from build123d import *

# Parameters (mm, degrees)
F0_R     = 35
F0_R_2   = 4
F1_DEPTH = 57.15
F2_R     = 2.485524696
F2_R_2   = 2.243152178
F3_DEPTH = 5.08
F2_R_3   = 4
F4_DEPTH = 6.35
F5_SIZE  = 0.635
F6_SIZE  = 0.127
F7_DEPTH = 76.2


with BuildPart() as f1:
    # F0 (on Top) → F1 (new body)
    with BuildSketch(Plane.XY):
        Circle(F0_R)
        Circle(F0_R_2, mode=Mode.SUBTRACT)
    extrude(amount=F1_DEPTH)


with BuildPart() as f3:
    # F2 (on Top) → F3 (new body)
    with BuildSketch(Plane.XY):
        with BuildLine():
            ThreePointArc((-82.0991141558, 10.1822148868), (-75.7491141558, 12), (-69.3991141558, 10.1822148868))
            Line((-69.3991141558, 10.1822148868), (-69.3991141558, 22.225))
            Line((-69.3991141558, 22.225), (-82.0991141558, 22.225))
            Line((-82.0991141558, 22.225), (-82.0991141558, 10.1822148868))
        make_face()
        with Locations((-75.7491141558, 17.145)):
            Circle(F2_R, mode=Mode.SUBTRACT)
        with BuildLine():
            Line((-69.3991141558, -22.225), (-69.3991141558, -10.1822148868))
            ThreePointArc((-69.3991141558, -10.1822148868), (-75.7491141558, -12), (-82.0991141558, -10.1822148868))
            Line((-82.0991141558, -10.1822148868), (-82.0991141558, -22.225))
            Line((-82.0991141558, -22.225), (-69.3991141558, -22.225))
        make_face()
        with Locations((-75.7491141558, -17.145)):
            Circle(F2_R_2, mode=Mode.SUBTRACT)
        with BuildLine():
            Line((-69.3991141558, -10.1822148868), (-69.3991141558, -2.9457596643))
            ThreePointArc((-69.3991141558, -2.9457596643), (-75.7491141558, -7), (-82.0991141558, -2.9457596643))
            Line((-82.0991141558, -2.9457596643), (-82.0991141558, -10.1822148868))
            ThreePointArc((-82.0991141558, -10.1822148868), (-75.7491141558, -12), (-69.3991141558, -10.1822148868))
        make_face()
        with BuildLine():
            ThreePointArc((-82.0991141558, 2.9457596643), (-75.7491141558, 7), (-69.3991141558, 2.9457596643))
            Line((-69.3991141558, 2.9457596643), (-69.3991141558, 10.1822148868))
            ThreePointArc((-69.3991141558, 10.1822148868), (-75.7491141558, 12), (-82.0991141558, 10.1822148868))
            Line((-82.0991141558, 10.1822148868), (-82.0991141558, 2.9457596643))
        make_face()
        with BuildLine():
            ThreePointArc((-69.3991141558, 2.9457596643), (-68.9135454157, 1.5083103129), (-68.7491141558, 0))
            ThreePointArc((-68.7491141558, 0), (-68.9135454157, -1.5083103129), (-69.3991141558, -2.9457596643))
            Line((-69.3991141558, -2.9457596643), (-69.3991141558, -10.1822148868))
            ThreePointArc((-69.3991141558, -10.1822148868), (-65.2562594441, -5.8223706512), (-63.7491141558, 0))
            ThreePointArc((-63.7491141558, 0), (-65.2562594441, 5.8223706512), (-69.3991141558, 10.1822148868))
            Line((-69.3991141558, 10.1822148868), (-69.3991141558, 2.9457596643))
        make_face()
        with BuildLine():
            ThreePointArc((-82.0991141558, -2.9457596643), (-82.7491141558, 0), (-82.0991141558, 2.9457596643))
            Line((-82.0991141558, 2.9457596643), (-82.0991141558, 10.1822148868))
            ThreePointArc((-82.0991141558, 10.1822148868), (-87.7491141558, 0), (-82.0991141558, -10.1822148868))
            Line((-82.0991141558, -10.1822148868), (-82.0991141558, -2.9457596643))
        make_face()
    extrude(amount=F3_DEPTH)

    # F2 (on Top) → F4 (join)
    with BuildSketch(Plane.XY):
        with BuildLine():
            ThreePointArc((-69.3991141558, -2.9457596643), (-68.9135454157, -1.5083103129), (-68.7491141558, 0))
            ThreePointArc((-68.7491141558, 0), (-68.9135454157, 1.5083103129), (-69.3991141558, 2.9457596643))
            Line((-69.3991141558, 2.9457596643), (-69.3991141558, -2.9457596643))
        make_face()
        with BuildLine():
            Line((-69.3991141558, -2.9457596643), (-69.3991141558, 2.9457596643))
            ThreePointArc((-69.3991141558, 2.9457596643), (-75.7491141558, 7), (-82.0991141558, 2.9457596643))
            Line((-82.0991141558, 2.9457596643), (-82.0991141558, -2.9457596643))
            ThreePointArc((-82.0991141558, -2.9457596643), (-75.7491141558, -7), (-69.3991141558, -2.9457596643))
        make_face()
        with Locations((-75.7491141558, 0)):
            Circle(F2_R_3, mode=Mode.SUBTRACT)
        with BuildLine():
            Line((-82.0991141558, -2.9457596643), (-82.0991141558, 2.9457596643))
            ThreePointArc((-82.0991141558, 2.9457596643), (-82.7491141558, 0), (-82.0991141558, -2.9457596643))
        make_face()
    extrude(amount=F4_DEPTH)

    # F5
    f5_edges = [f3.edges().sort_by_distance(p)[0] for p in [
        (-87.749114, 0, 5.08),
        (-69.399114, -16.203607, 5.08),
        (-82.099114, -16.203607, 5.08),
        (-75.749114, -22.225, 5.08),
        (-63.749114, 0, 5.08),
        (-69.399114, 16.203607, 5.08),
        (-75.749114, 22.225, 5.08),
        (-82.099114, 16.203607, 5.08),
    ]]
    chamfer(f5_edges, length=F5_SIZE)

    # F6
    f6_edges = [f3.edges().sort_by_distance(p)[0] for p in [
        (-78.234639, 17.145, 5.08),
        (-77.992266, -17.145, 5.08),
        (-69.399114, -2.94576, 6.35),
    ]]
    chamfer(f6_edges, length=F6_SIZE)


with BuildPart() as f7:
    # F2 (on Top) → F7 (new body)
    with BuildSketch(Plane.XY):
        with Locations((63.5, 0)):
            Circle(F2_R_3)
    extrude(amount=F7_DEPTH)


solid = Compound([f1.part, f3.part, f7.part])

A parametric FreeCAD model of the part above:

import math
import FreeCAD as App
import Part
import Sketcher

V = App.Vector
Q = App.Units.Quantity


def edges_at(feature, points):
    """Names of the edges that pass closest to the given points."""
    edges = feature.Shape.Edges
    near = lambda p: min(range(len(edges)), key=lambda i: edges[i].distToShape(Part.Vertex(*p))[0])
    return sorted({f"Edge{near(p) + 1}" for p in points})

doc = App.newDocument("Part")
body = doc.addObject("PartDesign::Body", "Body")

sketch1 = body.newObject("Sketcher::SketchObject", "Sketch")
sketch1.AttachmentSupport = (doc.getObject("XY_Plane"), [""])
sketch1.MapMode = "FlatFace"
sketch1.addGeometry([
    Part.Circle(V(0, 0, 0), V(0, 0, 1), 35),
    Part.Circle(V(0, 0, 0), V(0, 0, 1), 4),
], False)
sketch1.addConstraint([
    Sketcher.Constraint("Coincident", 0, 3, -1, 1),
    Sketcher.Constraint("Coincident", 1, 3, -1, 1),
    Sketcher.Constraint("Diameter", 0, Q("70 mm")),
    Sketcher.Constraint("Diameter", 1, Q("8 mm")),
])
pad1 = body.newObject("PartDesign::Pad", "Pad")
pad1.Profile = sketch1
pad1.Length = Q("2.25 in")
body2 = doc.addObject("PartDesign::Body", "Body001")

sketch2 = body2.newObject("Sketcher::SketchObject", "Sketch001")
sketch2.AttachmentSupport = (doc.getObject("XY_Plane001"), [""])
sketch2.MapMode = "FlatFace"
sketch2.addGeometry([
    Part.LineSegment(V(-82.1, 22.2, 0), V(-82.1, 10.2, 0)),
    Part.ArcOfCircle(Part.Circle(V(-75.7, 0, 0), V(0, 0, 1), 12), math.radians(122), math.radians(238)),
    Part.LineSegment(V(-82.1, -10.2, 0), V(-82.1, -22.2, 0)),
    Part.LineSegment(V(-82.1, -22.2, 0), V(-69.4, -22.2, 0)),
    Part.LineSegment(V(-69.4, -22.2, 0), V(-69.4, -10.2, 0)),
    Part.ArcOfCircle(Part.Circle(V(-75.7, 0, 0), V(0, 0, 1), 12), math.radians(-58), math.radians(0)),
    Part.ArcOfCircle(Part.Circle(V(-75.7, 0, 0), V(0, 0, 1), 12), math.radians(0), math.radians(58)),
    Part.LineSegment(V(-69.4, 10.2, 0), V(-69.4, 22.2, 0)),
    Part.LineSegment(V(-69.4, 22.2, 0), V(-82.1, 22.2, 0)),
    Part.ArcOfCircle(Part.Circle(V(-75.7, 0, 0), V(0, 0, 1), 7), math.radians(25), math.radians(155)),
    Part.ArcOfCircle(Part.Circle(V(-75.7, 0, 0), V(0, 0, 1), 7), math.radians(0), math.radians(25)),
    Part.ArcOfCircle(Part.Circle(V(-75.7, 0, 0), V(0, 0, 1), 7), math.radians(-25), math.radians(0)),
    Part.ArcOfCircle(Part.Circle(V(-75.7, 0, 0), V(0, 0, 1), 7), math.radians(-155), math.radians(-25)),
    Part.ArcOfCircle(Part.Circle(V(-75.7, 0, 0), V(0, 0, 1), 7), math.radians(155), math.radians(205)),
    Part.Circle(V(-75.7, 17.1, 0), V(0, 0, 1), 2.5),
    Part.Circle(V(-75.7, -17.1, 0), V(0, 0, 1), 2.2),
], False)
sketch2.addConstraint([
    Sketcher.Constraint("Coincident", 0, 2, 1, 1),
    Sketcher.Constraint("Coincident", 1, 2, 2, 1),
    Sketcher.Constraint("Coincident", 2, 2, 3, 1),
    Sketcher.Constraint("Coincident", 3, 2, 4, 1),
    Sketcher.Constraint("Coincident", 4, 2, 5, 1),
    Sketcher.Constraint("Tangent", 5, 2, 6, 1),
    Sketcher.Constraint("Coincident", 6, 2, 7, 1),
    Sketcher.Constraint("Coincident", 7, 2, 8, 1),
    Sketcher.Constraint("Coincident", 8, 2, 0, 1),
    Sketcher.Constraint("Tangent", 9, 1, 10, 2),
    Sketcher.Constraint("Tangent", 10, 1, 11, 2),
    Sketcher.Constraint("Tangent", 11, 1, 12, 2),
    Sketcher.Constraint("Tangent", 12, 1, 13, 2),
    Sketcher.Constraint("Tangent", 13, 1, 9, 2),
    Sketcher.Constraint("Vertical", 0),
    Sketcher.Constraint("Vertical", 2),
    Sketcher.Constraint("Horizontal", 3),
    Sketcher.Constraint("Vertical", 4),
    Sketcher.Constraint("Vertical", 7),
    Sketcher.Constraint("Horizontal", 8),
    Sketcher.Constraint("Coincident", 5, 3, 1, 3),
    Sketcher.Constraint("Coincident", 9, 3, 1, 3),
    Sketcher.Constraint("Coincident", 11, 3, 1, 3),
    Sketcher.Constraint("Equal", 1, 5),
    Sketcher.Constraint("Equal", 5, 6),
    Sketcher.Constraint("Symmetric", 14, 3, 15, 3, -1),
    Sketcher.Constraint("Symmetric", 0, 2, 1, 2, -1),
    Sketcher.Constraint("Symmetric", 3, 2, 7, 2, -1),
    Sketcher.Constraint("PointOnObject", 5, 2, -1),
    Sketcher.Constraint("PointOnObject", 10, 1, -1),
    Sketcher.Constraint("Horizontal", 1, 2, 4, 2),
    Sketcher.Constraint("Horizontal", 11, 1, 12, 1),
    Sketcher.Constraint("Horizontal", 9, 1, 13, 1),
    Sketcher.Constraint("Vertical", 13, 3, 14, 3),
    Sketcher.Constraint("Vertical", 7, 2, 9, 1),
    Sketcher.Constraint("Vertical", 9, 1, 11, 1),
    Sketcher.Constraint("DistanceX", 3, 1, 3, 2, Q("0.5 in")),
    Sketcher.Constraint("DistanceY", 2, 2, 15, 3, Q("0.2 in")),
    Sketcher.Constraint("Radius", 1, Q("12 mm")),
    Sketcher.Constraint("Radius", 9, Q("7 mm")),
    Sketcher.Constraint("Diameter", 14, Q("4.971049 mm")),
    Sketcher.Constraint("DistanceY", -1, 1, 14, 3, Q("0.675 in")),
    Sketcher.Constraint("Diameter", 15, Q("4.486304 mm")),
    Sketcher.Constraint("DistanceX", 1, 3, -1, 1, Q("75.749114 mm")),
])
pad2 = body2.newObject("PartDesign::Pad", "Pad001")
pad2.Profile = sketch2
pad2.Length = Q("0.2 in")

sketch3 = body2.newObject("Sketcher::SketchObject", "Sketch002")
sketch3.AttachmentSupport = (doc.getObject("XY_Plane001"), [""])
sketch3.MapMode = "FlatFace"
sketch3.addGeometry([
    Part.ArcOfCircle(Part.Circle(V(-75.7, 0, 0), V(0, 0, 1), 7), math.radians(-25), math.radians(0)),
    Part.ArcOfCircle(Part.Circle(V(-75.7, 0, 0), V(0, 0, 1), 7), math.radians(0), math.radians(25)),
    Part.ArcOfCircle(Part.Circle(V(-75.7, 0, 0), V(0, 0, 1), 7), math.radians(25), math.radians(155)),
    Part.ArcOfCircle(Part.Circle(V(-75.7, 0, 0), V(0, 0, 1), 7), math.radians(155), math.radians(205)),
    Part.ArcOfCircle(Part.Circle(V(-75.7, 0, 0), V(0, 0, 1), 7), math.radians(-155), math.radians(-25)),
    Part.Circle(V(-75.7, 0, 0), V(0, 0, 1), 4),
], False)
sketch3.addConstraint([
    Sketcher.Constraint("Tangent", 0, 2, 1, 1),
    Sketcher.Constraint("Tangent", 1, 2, 2, 1),
    Sketcher.Constraint("Tangent", 2, 2, 3, 1),
    Sketcher.Constraint("Tangent", 3, 2, 4, 1),
    Sketcher.Constraint("Tangent", 4, 2, 0, 1),
    Sketcher.Constraint("Coincident", 2, 3, 0, 3),
    Sketcher.Constraint("Coincident", 5, 3, 0, 3),
    Sketcher.Constraint("Symmetric", 2, 2, 3, 2, -1),
    Sketcher.Constraint("PointOnObject", 0, 2, -1),
    Sketcher.Constraint("Horizontal", 1, 2, 2, 2),
    Sketcher.Constraint("Horizontal", 3, 2, 4, 2),
    Sketcher.Constraint("Diameter", 5, Q("8 mm")),
    Sketcher.Constraint("Radius", 0, Q("7 mm")),
    Sketcher.Constraint("DistanceX", 0, 3, 1, 2, Q("0.25 in")),
    Sketcher.Constraint("DistanceX", 0, 3, -1, 1, Q("75.749114 mm")),
])
pad3 = body2.newObject("PartDesign::Pad", "Pad002")
pad3.Profile = sketch3
pad3.Length = Q("0.25 in")
doc.recompute()

chamfer = body2.newObject("PartDesign::Chamfer", "Chamfer")
chamfer.Base = (pad3, edges_at(pad3, [
    (-87.749, 0, 5.08),
    (-69.399, -16.204, 5.08),
    (-82.099, -16.204, 5.08),
    (-75.749, -22.225, 5.08),
    (-65.256, -5.822, 5.08),
    (-69.399, 16.204, 5.08),
    (-75.749, 22.225, 5.08),
    (-82.099, 16.204, 5.08),
]))
chamfer.Size = Q("0.025 in")
doc.recompute()

chamfer2 = body2.newObject("PartDesign::Chamfer", "Chamfer001")
chamfer2.Base = (chamfer, edges_at(chamfer, [(-78.235, 17.145, 5.08), (-77.992, -17.145, 5.08), (-75.749, -7, 6.35)]))
chamfer2.Size = Q("0.005 in")
body3 = doc.addObject("PartDesign::Body", "Body002")

sketch4 = body3.newObject("Sketcher::SketchObject", "Sketch003")
sketch4.AttachmentSupport = (doc.getObject("XY_Plane002"), [""])
sketch4.MapMode = "FlatFace"
sketch4.addGeometry(Part.Circle(V(63.5, 0, 0), V(0, 0, 1), 4), False)
sketch4.addConstraint([
    Sketcher.Constraint("PointOnObject", 0, 3, -1),
    Sketcher.Constraint("DistanceX", -1, 1, 0, 3, Q("2.5 in")),
    Sketcher.Constraint("Diameter", 0, Q("8 mm")),
])
pad4 = body3.newObject("PartDesign::Pad", "Pad003")
pad4.Profile = sketch4
pad4.Length = Q("3 in")

doc.recompute()
